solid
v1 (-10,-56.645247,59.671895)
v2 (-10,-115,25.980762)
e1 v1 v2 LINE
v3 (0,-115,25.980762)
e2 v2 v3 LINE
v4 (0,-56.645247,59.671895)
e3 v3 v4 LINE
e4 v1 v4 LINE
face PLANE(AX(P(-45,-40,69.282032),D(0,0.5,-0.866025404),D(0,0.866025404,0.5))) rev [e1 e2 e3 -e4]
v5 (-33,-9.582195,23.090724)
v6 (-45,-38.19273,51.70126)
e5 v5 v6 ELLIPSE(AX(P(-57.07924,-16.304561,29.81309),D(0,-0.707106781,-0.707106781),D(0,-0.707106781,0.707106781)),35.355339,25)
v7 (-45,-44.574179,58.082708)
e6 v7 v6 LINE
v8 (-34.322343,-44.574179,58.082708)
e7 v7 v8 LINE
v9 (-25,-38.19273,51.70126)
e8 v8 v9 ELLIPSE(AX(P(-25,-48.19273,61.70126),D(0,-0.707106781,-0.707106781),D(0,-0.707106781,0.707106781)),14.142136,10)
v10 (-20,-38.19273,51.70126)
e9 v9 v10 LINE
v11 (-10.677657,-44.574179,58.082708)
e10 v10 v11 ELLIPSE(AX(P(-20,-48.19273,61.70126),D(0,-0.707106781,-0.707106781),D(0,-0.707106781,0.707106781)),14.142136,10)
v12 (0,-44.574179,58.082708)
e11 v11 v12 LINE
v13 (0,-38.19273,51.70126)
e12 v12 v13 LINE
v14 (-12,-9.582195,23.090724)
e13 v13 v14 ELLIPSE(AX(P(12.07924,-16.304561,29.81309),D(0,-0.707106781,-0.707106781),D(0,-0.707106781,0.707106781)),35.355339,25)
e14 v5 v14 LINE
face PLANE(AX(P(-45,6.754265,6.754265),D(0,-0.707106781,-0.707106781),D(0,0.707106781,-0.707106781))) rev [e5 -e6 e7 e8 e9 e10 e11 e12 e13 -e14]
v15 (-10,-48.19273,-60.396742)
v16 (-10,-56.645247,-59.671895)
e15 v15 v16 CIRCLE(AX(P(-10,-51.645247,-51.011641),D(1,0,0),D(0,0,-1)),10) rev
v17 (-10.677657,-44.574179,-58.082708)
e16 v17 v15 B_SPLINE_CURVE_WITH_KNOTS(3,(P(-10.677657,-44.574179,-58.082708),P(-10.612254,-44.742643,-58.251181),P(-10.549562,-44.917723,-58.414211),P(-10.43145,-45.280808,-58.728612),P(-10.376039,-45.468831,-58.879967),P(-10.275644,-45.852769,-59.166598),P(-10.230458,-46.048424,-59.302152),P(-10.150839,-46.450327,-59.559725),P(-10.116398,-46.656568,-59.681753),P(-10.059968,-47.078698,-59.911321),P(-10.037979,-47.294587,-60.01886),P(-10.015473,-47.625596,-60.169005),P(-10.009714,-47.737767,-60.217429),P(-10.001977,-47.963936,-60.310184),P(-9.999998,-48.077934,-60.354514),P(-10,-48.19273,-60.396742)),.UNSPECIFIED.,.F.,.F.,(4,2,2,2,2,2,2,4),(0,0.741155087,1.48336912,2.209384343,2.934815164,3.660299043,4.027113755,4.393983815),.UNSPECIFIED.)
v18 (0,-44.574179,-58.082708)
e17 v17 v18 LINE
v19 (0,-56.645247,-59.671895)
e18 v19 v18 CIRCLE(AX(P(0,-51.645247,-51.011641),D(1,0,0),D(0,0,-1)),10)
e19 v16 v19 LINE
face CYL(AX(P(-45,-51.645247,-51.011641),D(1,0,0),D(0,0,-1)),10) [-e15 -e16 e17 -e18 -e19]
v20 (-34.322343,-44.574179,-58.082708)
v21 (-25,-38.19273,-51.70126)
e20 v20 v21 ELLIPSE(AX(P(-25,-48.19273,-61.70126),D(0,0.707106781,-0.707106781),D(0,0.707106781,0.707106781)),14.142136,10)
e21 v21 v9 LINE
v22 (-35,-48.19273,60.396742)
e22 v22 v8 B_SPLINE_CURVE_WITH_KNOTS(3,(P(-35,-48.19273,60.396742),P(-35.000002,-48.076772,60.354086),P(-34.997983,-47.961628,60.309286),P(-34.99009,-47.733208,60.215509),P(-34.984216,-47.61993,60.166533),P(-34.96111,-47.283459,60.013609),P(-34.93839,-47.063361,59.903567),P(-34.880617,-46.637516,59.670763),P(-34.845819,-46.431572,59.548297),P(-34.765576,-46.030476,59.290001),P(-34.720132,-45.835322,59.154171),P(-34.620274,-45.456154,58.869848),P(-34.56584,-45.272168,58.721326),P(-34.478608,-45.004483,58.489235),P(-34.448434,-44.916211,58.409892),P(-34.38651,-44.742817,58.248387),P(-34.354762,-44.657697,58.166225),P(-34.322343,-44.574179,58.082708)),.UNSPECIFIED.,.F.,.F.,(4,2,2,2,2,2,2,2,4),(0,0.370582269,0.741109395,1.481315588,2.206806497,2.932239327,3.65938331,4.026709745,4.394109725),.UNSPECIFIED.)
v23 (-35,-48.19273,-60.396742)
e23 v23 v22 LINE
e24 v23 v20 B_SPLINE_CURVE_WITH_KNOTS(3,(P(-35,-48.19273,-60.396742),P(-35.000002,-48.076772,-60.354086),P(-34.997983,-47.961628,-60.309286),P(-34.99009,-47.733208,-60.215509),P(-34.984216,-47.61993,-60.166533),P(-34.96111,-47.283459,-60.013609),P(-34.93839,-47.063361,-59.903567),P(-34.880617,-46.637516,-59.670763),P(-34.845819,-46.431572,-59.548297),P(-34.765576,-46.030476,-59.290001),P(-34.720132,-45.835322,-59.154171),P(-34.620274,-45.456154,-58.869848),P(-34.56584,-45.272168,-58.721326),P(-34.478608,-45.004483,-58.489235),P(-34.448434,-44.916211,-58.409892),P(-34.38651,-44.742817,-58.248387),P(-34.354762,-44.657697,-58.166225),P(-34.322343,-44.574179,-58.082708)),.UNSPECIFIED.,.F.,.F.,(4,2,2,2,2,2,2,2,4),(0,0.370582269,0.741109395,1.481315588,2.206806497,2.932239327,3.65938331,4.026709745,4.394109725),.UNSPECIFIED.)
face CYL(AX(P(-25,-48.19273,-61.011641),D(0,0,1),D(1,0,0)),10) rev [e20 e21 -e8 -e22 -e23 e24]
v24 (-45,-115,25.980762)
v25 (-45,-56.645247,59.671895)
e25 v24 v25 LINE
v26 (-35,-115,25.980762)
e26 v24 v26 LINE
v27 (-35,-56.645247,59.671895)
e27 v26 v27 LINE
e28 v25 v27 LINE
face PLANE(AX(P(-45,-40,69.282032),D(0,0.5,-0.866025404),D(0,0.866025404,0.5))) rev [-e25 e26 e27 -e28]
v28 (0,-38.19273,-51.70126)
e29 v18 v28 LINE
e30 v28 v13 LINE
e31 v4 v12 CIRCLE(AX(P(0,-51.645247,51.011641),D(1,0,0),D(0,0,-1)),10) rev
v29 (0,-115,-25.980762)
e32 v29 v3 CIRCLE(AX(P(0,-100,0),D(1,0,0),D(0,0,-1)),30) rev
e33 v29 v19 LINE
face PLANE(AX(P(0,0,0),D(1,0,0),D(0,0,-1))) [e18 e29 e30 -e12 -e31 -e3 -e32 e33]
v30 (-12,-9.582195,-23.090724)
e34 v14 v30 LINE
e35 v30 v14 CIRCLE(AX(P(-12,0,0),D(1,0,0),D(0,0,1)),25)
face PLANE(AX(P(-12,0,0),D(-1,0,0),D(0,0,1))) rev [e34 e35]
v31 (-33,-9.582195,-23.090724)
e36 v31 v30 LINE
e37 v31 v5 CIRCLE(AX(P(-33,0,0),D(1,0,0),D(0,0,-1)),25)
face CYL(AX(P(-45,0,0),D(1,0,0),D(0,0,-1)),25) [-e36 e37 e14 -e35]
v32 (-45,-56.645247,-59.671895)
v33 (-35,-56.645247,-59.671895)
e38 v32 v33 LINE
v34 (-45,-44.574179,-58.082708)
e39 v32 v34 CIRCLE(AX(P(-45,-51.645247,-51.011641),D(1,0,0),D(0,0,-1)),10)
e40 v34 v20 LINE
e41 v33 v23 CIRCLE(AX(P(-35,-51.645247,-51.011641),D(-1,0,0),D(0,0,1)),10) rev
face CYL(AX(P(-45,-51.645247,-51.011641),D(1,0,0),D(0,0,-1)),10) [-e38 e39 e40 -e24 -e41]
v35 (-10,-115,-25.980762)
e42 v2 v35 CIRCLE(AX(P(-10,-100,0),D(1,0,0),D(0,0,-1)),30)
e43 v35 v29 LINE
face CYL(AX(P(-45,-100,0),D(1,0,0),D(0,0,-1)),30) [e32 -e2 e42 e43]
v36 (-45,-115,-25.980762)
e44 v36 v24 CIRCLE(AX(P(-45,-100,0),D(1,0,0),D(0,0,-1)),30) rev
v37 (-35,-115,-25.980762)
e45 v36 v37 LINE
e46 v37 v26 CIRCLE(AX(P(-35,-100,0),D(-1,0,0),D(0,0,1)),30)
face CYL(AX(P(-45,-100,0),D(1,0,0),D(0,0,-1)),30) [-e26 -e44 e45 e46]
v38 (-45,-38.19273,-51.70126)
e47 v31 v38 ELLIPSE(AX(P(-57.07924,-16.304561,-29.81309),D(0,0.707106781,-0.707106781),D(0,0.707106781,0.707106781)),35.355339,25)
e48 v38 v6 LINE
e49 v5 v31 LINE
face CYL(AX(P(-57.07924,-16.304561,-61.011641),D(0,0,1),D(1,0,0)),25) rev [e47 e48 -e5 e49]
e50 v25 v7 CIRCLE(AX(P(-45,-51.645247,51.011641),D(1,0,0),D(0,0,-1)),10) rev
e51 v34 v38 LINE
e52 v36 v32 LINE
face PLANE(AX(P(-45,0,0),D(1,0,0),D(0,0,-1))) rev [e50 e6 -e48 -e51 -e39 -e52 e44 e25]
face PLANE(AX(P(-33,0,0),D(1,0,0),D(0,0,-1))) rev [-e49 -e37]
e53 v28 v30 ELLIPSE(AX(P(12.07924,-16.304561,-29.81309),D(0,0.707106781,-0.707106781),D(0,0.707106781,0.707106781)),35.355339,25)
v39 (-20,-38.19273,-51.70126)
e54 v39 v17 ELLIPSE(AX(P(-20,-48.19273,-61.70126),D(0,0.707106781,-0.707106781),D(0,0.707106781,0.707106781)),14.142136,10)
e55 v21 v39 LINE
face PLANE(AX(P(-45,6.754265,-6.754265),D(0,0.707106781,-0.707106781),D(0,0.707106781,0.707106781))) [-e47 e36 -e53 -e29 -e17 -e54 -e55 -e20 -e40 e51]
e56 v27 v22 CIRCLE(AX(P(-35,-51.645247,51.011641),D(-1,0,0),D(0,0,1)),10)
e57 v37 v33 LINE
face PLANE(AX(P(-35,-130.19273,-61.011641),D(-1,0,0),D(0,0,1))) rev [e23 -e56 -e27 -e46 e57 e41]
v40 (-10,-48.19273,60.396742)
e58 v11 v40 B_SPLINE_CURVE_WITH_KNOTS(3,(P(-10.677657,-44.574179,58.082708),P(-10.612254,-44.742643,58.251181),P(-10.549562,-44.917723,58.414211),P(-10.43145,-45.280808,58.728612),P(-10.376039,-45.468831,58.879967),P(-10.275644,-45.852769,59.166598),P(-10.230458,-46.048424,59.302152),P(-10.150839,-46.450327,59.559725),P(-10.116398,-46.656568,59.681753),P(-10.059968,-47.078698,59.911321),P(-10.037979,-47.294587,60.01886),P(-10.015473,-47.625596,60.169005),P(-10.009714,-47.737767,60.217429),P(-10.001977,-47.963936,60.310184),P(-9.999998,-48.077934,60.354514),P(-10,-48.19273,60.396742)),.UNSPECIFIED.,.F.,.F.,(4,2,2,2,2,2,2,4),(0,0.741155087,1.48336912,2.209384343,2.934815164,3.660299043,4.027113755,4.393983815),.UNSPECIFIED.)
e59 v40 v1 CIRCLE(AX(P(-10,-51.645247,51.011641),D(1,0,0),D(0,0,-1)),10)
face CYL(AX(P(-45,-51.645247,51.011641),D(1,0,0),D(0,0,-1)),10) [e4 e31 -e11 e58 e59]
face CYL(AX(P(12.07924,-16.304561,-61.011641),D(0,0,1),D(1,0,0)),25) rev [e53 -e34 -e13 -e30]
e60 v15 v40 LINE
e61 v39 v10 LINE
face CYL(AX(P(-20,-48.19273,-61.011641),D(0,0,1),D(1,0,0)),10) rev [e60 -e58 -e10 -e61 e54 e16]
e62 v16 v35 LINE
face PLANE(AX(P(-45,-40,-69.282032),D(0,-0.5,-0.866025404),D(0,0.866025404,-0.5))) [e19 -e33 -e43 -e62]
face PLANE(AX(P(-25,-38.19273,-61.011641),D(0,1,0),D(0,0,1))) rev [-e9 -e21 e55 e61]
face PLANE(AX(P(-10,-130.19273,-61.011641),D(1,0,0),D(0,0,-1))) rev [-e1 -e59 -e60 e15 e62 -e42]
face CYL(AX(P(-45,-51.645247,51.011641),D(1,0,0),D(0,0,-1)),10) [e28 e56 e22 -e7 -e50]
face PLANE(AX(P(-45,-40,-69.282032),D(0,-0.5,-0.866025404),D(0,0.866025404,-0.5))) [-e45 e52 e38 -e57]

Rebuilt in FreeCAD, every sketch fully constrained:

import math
import FreeCAD as App
import Part
import Sketcher
from FreeCAD import Vector
Q = App.Units.Quantity

doc = App.newDocument("Part")
body = doc.addObject("PartDesign::Body", "Body")

sketch1 = body.newObject("Sketcher::SketchObject", "Sketch")
sketch1.AttachmentSupport = (doc.getObject("YZ_Plane"), [""])
sketch1.MapMode = "FlatFace"
sketch1.addGeometry(Part.LineSegment(Vector(-57, 60, 0), Vector(-115, 26, 0)), False)
sketch1.addGeometry(Part.ArcOfCircle(Part.Circle(Vector(-100, 0, 0), Vector(0, 0, 1), 30), math.radians(120), math.radians(240)), False)
sketch1.addGeometry(Part.LineSegment(Vector(-115, -26, 0), Vector(-57, -60, 0)), False)
sketch1.addGeometry(Part.ArcOfCircle(Part.Circle(Vector(-52, -51, 0), Vector(0, 0, 1), 10), math.radians(-120), math.radians(-45)), False)
sketch1.addGeometry(Part.LineSegment(Vector(-45, -58, 0), Vector(-38, -52, 0)), False)
sketch1.addGeometry(Part.LineSegment(Vector(-38, -52, 0), Vector(-10, -23, 0)), False)
sketch1.addGeometry(Part.ArcOfCircle(Part.Circle(Vector(0, 0, 0), Vector(0, 0, 1), 25), math.radians(-113), math.radians(113)), False)
sketch1.addGeometry(Part.LineSegment(Vector(-10, 23, 0), Vector(-38, 52, 0)), False)
sketch1.addGeometry(Part.LineSegment(Vector(-38, 52, 0), Vector(-45, 58, 0)), False)
sketch1.addGeometry(Part.ArcOfCircle(Part.Circle(Vector(-52, 51, 0), Vector(0, 0, 1), 10), math.radians(45), math.radians(120)), False)
sketch1.addConstraint(Sketcher.Constraint("Tangent", 0, 2, 1, 1))
sketch1.addConstraint(Sketcher.Constraint("Tangent", 1, 2, 2, 1))
sketch1.addConstraint(Sketcher.Constraint("Tangent", 2, 2, 3, 1))
sketch1.addConstraint(Sketcher.Constraint("Tangent", 3, 2, 4, 1))
sketch1.addConstraint(Sketcher.Constraint("Coincident", 4, 2, 5, 1))
sketch1.addConstraint(Sketcher.Constraint("Coincident", 5, 2, 6, 1))
sketch1.addConstraint(Sketcher.Constraint("Coincident", 6, 2, 7, 1))
sketch1.addConstraint(Sketcher.Constraint("Coincident", 7, 2, 8, 1))
sketch1.addConstraint(Sketcher.Constraint("Tangent", 8, 2, 9, 1))
sketch1.addConstraint(Sketcher.Constraint("Tangent", 9, 2, 0, 1))
sketch1.addConstraint(Sketcher.Constraint("Coincident", 6, 3, -1, 1))
sketch1.addConstraint(Sketcher.Constraint("Equal", 3, 9))
sketch1.addConstraint(Sketcher.Constraint("Symmetric", 3, 3, 9, 3, -1))
sketch1.addConstraint(Sketcher.Constraint("Symmetric", 4, 2, 7, 2, -1))
sketch1.addConstraint(Sketcher.Constraint("PointOnObject", 1, 3, -1))
sketch1.addConstraint(Sketcher.Constraint("Parallel", 4, 5))
sketch1.addConstraint(Sketcher.Constraint("Perpendicular", 5, 7))
sketch1.addConstraint(Sketcher.Constraint("Parallel", 7, 8))
sketch1.addConstraint(Sketcher.Constraint("Radius", 1, 30.0))
sketch1.addConstraint(Sketcher.Constraint("Radius", 3, 10.0))
sketch1.addConstraint(Sketcher.Constraint("Radius", 6, 25.0))
sketch1.addConstraint(Sketcher.Constraint("Angle", 0, Q("-150 deg")))
sketch1.addConstraint(Sketcher.Constraint("DistanceX", 1, 3, -1, 1, 100.0))
sketch1.addConstraint(Sketcher.Constraint("DistanceX", 4, 2, -1, 1, 38.0))
sketch1.addConstraint(Sketcher.Constraint("DistanceY", 3, 3, -1, 1, 51.011641))
pad1 = body.newObject("PartDesign::Pad", "Pad")
pad1.Profile = sketch1
pad1.Length = 45
pad1.Reversed = True

sketch2 = body.newObject("Sketcher::SketchObject", "Sketch001")
sketch2.AttachmentSupport = (doc.getObject("YZ_Plane"), [""])
sketch2.MapMode = "FlatFace"
sketch2.addGeometry(Part.LineSegment(Vector(-10, 23, 0), Vector(-10, -23, 0)), False)
sketch2.addGeometry(Part.ArcOfCircle(Part.Circle(Vector(0, 0, 0), Vector(0, 0, 1), 25), math.radians(-113), math.radians(113)), False)
sketch2.addConstraint(Sketcher.Constraint("Coincident", 0, 1, 1, 2))
sketch2.addConstraint(Sketcher.Constraint("Coincident", 1, 1, 0, 2))
sketch2.addConstraint(Sketcher.Constraint("Vertical", 0))
sketch2.addConstraint(Sketcher.Constraint("Coincident", 1, 3, -1, 1))
sketch2.addConstraint(Sketcher.Constraint("Radius", 1, 25.0))
sketch2.addConstraint(Sketcher.Constraint("DistanceY", 0, 2, 0, 1, 46.181448))
pocket1 = body.newObject("PartDesign::Pocket", "Pocket")
pocket1.Profile = sketch2
pocket1.Length = 12

sketch3 = body.newObject("Sketcher::SketchObject", "Sketch002")
sketch3.AttachmentSupport = (doc.getObject("YZ_Plane"), [""])
sketch3.MapMode = "FlatFace"
sketch3.AttachmentOffset = App.Placement(Vector(0, 0, -33), App.Rotation())
sketch3.addGeometry(Part.LineSegment(Vector(-10, 23, 0), Vector(-10, -23, 0)), False)
sketch3.addGeometry(Part.ArcOfCircle(Part.Circle(Vector(0, 0, 0), Vector(0, 0, 1), 25), math.radians(-113), math.radians(113)), False)
sketch3.addConstraint(Sketcher.Constraint("Coincident", 0, 1, 1, 2))
sketch3.addConstraint(Sketcher.Constraint("Coincident", 1, 1, 0, 2))
sketch3.addConstraint(Sketcher.Constraint("Vertical", 0))
sketch3.addConstraint(Sketcher.Constraint("Coincident", 1, 3, -1, 1))
sketch3.addConstraint(Sketcher.Constraint("Radius", 1, 25.0))
sketch3.addConstraint(Sketcher.Constraint("DistanceY", 0, 2, 0, 1, 46.181448))
pocket2 = body.newObject("PartDesign::Pocket", "Pocket001")
pocket2.Profile = sketch3
pocket2.Length = 12

sketch4 = body.newObject("Sketcher::SketchObject", "Sketch003")
sketch4.AttachmentSupport = (doc.getObject("XY_Plane"), [""])
sketch4.MapMode = "FlatFace"
sketch4.AttachmentOffset = App.Placement(Vector(0, 0, 58.082708), App.Rotation())
sketch4.addGeometry(Part.LineSegment(Vector(0, -10, 0), Vector(-12, -10, 0)), False)
sketch4.addGeometry(Part.ArcOfCircle(Part.Circle(Vector(12, -16, 0), Vector(0, 0, 1), 25), math.radians(164), math.radians(241)), False)
sketch4.addGeometry(Part.LineSegment(Vector(0, -38, 0), Vector(0, -10, 0)), False)
sketch4.addGeometry(Part.LineSegment(Vector(-33, -10, 0), Vector(-45, -10, 0)), False)
sketch4.addGeometry(Part.LineSegment(Vector(-45, -10, 0), Vector(-45, -38, 0)), False)
sketch4.addGeometry(Part.ArcOfCircle(Part.Circle(Vector(-57, -16, 0), Vector(0, 0, 1), 25), math.radians(-61), math.radians(16)), False)
sketch4.addConstraint(Sketcher.Constraint("Coincident", 0, 2, 1, 1))
sketch4.addConstraint(Sketcher.Constraint("Coincident", 1, 2, 2, 1))
sketch4.addConstraint(Sketcher.Constraint("Coincident", 2, 2, 0, 1))
sketch4.addConstraint(Sketcher.Constraint("Coincident", 3, 2, 4, 1))
sketch4.addConstraint(Sketcher.Constraint("Coincident", 4, 2, 5, 1))
sketch4.addConstraint(Sketcher.Constraint("Coincident", 5, 2, 3, 1))
sketch4.addConstraint(Sketcher.Constraint("Horizontal", 0))
sketch4.addConstraint(Sketcher.Constraint("Vertical", 2))
sketch4.addConstraint(Sketcher.Constraint("Horizontal", 3))
sketch4.addConstraint(Sketcher.Constraint("Vertical", 4))
sketch4.addConstraint(Sketcher.Constraint("Equal", 1, 5))
sketch4.addConstraint(Sketcher.Constraint("PointOnObject", 1, 2, -2))
sketch4.addConstraint(Sketcher.Constraint("Horizontal", 1, 3, 5, 3))
sketch4.addConstraint(Sketcher.Constraint("Horizontal", 2, 2, 3, 2))
sketch4.addConstraint(Sketcher.Constraint("Horizontal", 1, 2, 4, 2))
sketch4.addConstraint(Sketcher.Constraint("Radius", 1, 25.0))
sketch4.addConstraint(Sketcher.Constraint("DistanceX", 0, 2, 0, 1, 12.0))
sketch4.addConstraint(Sketcher.Constraint("DistanceX", 3, 2, -1, 1, 45.0))
sketch4.addConstraint(Sketcher.Constraint("DistanceY", 2, 1, 2, 2, 28.610535))
sketch4.addConstraint(Sketcher.Constraint("DistanceY", 1, 3, -1, 1, 16.304561))
pocket3 = body.newObject("PartDesign::Pocket", "Pocket002")
pocket3.Profile = sketch4
pocket3.Type = "ThroughAll"

sketch5 = body.newObject("Sketcher::SketchObject", "Sketch004")
sketch5.AttachmentSupport = (doc.getObject("XY_Plane"), [""])
sketch5.MapMode = "FlatFace"
sketch5.AttachmentOffset = App.Placement(Vector(0, 0, 58.082708), App.Rotation())
sketch5.addGeometry(Part.LineSegment(Vector(-35, -130, 0), Vector(-10, -130, 0)), False)
sketch5.addGeometry(Part.LineSegment(Vector(-10, -130, 0), Vector(-10, -48, 0)), False)
sketch5.addGeometry(Part.ArcOfCircle(Part.Circle(Vector(-20, -48, 0), Vector(0, 0, 1), 10), math.radians(0), math.radians(90)), False)
sketch5.addGeometry(Part.LineSegment(Vector(-20, -38, 0), Vector(-25, -38, 0)), False)
sketch5.addGeometry(Part.ArcOfCircle(Part.Circle(Vector(-25, -48, 0), Vector(0, 0, 1), 10), math.radians(90), math.radians(180)), False)
sketch5.addGeometry(Part.LineSegment(Vector(-35, -48, 0), Vector(-35, -130, 0)), False)
sketch5.addConstraint(Sketcher.Constraint("Coincident", 0, 2, 1, 1))
sketch5.addConstraint(Sketcher.Constraint("Tangent", 1, 2, 2, 1))
sketch5.addConstraint(Sketcher.Constraint("Tangent", 2, 2, 3, 1))
sketch5.addConstraint(Sketcher.Constraint("Tangent", 3, 2, 4, 1))
sketch5.addConstraint(Sketcher.Constraint("Tangent", 4, 2, 5, 1))
sketch5.addConstraint(Sketcher.Constraint("Coincident", 5, 2, 0, 1))
sketch5.addConstraint(Sketcher.Constraint("Horizontal", 0))
sketch5.addConstraint(Sketcher.Constraint("Vertical", 1))
sketch5.addConstraint(Sketcher.Constraint("Horizontal", 3))
sketch5.addConstraint(Sketcher.Constraint("Vertical", 5))
sketch5.addConstraint(Sketcher.Constraint("Equal", 2, 4))
sketch5.addConstraint(Sketcher.Constraint("Radius", 2, 10.0))
sketch5.addConstraint(Sketcher.Constraint("DistanceX", 0, 1, 0, 2, 25.0))
sketch5.addConstraint(Sketcher.Constraint("DistanceY", 1, 1, 1, 2, 82.0))
sketch5.addConstraint(Sketcher.Constraint("DistanceX", 2, 3, -1, 1, 20.0))
sketch5.addConstraint(Sketcher.Constraint("DistanceY", 2, 3, -1, 1, 48.19273))
pocket4 = body.newObject("PartDesign::Pocket", "Pocket003")
pocket4.Profile = sketch5
pocket4.Type = "ThroughAll"
pocket4.Midplane = True

doc.recompute()
